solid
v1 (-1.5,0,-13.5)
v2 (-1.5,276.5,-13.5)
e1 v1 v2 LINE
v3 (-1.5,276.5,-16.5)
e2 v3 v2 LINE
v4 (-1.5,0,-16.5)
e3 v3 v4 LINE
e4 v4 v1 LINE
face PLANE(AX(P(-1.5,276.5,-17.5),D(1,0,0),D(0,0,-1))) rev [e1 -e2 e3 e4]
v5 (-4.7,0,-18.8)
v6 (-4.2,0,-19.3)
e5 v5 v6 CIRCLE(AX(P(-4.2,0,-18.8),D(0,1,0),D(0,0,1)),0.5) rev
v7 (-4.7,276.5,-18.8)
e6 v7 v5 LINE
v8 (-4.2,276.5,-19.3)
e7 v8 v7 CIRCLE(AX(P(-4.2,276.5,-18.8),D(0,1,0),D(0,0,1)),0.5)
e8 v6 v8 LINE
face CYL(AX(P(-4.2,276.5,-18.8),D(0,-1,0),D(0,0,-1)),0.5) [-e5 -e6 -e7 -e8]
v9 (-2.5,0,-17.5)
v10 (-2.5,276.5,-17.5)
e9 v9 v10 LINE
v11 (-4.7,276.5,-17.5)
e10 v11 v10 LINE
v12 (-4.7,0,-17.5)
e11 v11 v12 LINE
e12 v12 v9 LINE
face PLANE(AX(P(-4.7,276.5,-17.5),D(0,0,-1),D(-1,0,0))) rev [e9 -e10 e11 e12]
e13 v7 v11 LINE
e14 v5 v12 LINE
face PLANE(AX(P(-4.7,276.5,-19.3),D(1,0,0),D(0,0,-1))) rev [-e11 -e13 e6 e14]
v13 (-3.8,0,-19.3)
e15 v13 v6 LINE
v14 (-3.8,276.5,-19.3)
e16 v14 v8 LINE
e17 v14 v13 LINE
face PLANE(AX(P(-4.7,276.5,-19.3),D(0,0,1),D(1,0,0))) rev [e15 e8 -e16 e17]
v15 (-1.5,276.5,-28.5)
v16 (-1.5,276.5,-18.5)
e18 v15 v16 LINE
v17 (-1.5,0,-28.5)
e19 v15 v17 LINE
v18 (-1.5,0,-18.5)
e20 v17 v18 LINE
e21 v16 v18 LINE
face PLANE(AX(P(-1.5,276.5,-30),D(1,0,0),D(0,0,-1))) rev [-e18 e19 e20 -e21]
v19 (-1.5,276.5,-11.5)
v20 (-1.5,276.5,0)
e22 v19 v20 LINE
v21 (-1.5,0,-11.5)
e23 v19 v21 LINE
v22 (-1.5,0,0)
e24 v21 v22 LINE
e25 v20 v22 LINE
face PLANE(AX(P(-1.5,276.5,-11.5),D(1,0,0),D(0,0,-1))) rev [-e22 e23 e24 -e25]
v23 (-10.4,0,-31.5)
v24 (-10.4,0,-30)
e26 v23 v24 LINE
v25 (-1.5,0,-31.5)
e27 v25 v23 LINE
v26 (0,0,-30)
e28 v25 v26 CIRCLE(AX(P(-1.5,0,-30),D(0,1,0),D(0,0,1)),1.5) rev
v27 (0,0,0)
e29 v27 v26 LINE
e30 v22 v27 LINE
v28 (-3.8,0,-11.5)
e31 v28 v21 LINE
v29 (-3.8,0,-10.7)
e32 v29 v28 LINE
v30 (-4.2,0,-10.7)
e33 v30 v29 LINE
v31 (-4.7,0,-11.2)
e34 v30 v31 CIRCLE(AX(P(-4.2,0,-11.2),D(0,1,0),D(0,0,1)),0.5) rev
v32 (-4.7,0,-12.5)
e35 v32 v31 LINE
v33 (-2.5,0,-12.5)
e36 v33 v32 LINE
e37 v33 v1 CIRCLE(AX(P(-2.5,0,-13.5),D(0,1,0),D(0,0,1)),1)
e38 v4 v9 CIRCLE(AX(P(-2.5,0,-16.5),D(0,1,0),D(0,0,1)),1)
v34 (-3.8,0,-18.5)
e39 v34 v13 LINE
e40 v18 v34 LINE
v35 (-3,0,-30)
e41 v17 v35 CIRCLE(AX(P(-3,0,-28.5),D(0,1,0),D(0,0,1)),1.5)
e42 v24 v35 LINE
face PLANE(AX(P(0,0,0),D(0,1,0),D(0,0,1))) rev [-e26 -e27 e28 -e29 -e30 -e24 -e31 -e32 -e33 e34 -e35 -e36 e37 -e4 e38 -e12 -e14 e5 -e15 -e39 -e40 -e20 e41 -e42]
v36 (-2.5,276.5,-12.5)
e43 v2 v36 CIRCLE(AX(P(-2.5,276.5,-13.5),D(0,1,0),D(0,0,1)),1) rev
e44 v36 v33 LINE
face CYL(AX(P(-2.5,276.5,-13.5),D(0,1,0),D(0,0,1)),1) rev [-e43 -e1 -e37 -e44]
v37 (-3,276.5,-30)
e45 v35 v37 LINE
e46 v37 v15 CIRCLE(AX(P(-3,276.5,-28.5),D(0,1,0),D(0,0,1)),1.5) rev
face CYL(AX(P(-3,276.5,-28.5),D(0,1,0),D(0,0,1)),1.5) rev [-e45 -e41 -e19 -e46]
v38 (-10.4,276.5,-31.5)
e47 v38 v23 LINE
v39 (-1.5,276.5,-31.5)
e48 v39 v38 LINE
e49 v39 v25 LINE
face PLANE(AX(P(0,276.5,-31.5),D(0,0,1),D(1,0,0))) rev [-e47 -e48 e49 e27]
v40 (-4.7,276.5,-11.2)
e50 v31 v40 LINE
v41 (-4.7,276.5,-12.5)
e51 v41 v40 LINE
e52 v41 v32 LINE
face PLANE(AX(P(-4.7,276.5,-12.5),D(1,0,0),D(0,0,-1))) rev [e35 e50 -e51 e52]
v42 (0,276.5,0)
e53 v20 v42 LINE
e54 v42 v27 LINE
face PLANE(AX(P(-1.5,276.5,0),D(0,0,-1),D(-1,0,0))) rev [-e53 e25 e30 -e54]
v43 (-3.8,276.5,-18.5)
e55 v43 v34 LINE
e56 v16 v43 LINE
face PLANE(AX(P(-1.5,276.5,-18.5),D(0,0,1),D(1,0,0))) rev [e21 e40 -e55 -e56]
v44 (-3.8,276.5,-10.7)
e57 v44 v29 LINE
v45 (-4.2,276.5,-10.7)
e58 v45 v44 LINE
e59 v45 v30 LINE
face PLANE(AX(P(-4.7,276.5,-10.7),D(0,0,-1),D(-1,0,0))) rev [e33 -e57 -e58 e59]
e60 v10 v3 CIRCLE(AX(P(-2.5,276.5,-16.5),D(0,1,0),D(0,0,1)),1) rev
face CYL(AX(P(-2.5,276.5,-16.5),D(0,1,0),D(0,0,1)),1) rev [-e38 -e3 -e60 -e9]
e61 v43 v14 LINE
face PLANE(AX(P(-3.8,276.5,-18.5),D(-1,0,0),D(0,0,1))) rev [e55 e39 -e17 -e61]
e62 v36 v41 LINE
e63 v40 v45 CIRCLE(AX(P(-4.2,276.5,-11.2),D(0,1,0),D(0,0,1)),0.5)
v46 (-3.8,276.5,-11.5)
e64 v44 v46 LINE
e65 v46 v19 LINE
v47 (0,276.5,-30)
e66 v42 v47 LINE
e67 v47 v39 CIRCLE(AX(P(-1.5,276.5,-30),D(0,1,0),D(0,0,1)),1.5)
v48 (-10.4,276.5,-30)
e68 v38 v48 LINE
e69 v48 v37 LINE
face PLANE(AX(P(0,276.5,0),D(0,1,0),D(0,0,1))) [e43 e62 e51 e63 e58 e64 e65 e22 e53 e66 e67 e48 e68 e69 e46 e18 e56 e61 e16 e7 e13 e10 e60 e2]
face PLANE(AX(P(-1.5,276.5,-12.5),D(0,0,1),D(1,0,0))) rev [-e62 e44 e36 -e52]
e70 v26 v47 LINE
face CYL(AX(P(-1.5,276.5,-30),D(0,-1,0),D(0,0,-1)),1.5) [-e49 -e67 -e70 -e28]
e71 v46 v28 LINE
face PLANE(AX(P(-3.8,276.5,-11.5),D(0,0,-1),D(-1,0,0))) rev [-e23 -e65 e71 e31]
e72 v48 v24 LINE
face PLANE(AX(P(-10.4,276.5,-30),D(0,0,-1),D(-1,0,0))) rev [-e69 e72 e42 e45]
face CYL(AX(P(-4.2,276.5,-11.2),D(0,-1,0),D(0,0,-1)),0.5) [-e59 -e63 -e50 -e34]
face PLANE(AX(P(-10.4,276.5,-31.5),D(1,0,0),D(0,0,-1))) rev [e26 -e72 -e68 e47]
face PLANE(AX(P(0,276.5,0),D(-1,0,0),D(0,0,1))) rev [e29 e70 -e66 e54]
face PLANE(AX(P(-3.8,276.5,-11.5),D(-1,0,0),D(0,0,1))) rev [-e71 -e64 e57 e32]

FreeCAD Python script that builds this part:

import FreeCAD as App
import Part
import Sketcher

V = App.Vector
Q = App.Units.Quantity


def edges_at(feature, points):
    """Names of the edges that pass closest to the given points."""
    edges = feature.Shape.Edges
    near = lambda p: min(range(len(edges)), key=lambda i: edges[i].distToShape(Part.Vertex(*p))[0])
    return sorted({f"Edge{near(p) + 1}" for p in points})


def add_polygon(sketch, points):
    """Adds a closed chain of lines whose ends are joined by coincident constraints."""
    first, n = sketch.GeometryCount, len(points)
    for a, b in zip(points, points[1:] + points[:1]):
        sketch.addGeometry(Part.LineSegment(App.Vector(*a, 0), App.Vector(*b, 0)), False)
    for i in range(n):
        sketch.addConstraint(Sketcher.Constraint("Coincident", first + i, 2, first + (i + 1) % n, 1))

doc = App.newDocument("Part")
body = doc.addObject("PartDesign::Body", "Body")

# Sketch on XZ plane
sketch1 = body.newObject("Sketcher::SketchObject", "Sketch")
sketch1.AttachmentSupport = (doc.getObject("XZ_Plane"), [""])
sketch1.MapMode = "FlatFace"
add_polygon(sketch1, [(0, 0), (0, -31.5), (-10.4, -31.5), (-10.4, -30), (-1.5, -30), (-1.5, -18.5), (-3.8, -18.5), (-3.8, -19.3), (-4.7, -19.3), (-4.7, -17.5), (-1.5, -17.5), (-1.5, -12.5), (-4.7, -12.5), (-4.7, -10.7), (-3.8, -10.7), (-3.8, -11.5), (-1.5, -11.5), (-1.5, 0)])  # lines 0-17
sketch1.addConstraint(Sketcher.Constraint("Vertical", 0))
sketch1.addConstraint(Sketcher.Constraint("Horizontal", 1))
sketch1.addConstraint(Sketcher.Constraint("Vertical", 2))
sketch1.addConstraint(Sketcher.Constraint("Horizontal", 3))
sketch1.addConstraint(Sketcher.Constraint("Vertical", 4))
sketch1.addConstraint(Sketcher.Constraint("Horizontal", 5))
sketch1.addConstraint(Sketcher.Constraint("Vertical", 6))
sketch1.addConstraint(Sketcher.Constraint("Horizontal", 7))
sketch1.addConstraint(Sketcher.Constraint("Vertical", 8))
sketch1.addConstraint(Sketcher.Constraint("Horizontal", 9))
sketch1.addConstraint(Sketcher.Constraint("Vertical", 10))
sketch1.addConstraint(Sketcher.Constraint("Horizontal", 11))
sketch1.addConstraint(Sketcher.Constraint("Vertical", 12))
sketch1.addConstraint(Sketcher.Constraint("Horizontal", 13))
sketch1.addConstraint(Sketcher.Constraint("Vertical", 14))
sketch1.addConstraint(Sketcher.Constraint("Horizontal", 15))
sketch1.addConstraint(Sketcher.Constraint("Vertical", 16))
sketch1.addConstraint(Sketcher.Constraint("Horizontal", 17))
sketch1.addConstraint(Sketcher.Constraint("Coincident", 17, 2, -1, 1))
sketch1.addConstraint(Sketcher.Constraint("Vertical", 4, 2, 9, 2))
sketch1.addConstraint(Sketcher.Constraint("Vertical", 8, 2, 11, 2))
sketch1.addConstraint(Sketcher.Constraint("Vertical", 6, 2, 13, 2))
sketch1.addConstraint(Sketcher.Constraint("Vertical", 10, 2, 15, 2))
sketch1.addConstraint(Sketcher.Constraint("Equal", 17, 2))
sketch1.addConstraint(Sketcher.Constraint("Equal", 8, 12))
sketch1.addConstraint(Sketcher.Constraint("Equal", 6, 14))
sketch1.addConstraint(Sketcher.Constraint("Equal", 4, 16))
sketch1.addConstraint(Sketcher.Constraint("DistanceY", 10, 1, 10, 2, Q("5 mm")))
sketch1.addConstraint(Sketcher.Constraint("DistanceX", 1, 2, 1, 1, Q("10.4 mm")))
sketch1.addConstraint(Sketcher.Constraint("DistanceX", 3, 1, 3, 2, Q("8.9 mm")))
sketch1.addConstraint(Sketcher.Constraint("DistanceX", 5, 2, 5, 1, Q("2.3 mm")))
sketch1.addConstraint(Sketcher.Constraint("DistanceX", 7, 2, 7, 1, Q("0.9 mm")))
sketch1.addConstraint(Sketcher.Constraint("DistanceY", 0, 2, 0, 1, Q("31.5 mm")))
sketch1.addConstraint(Sketcher.Constraint("DistanceY", 4, 1, 4, 2, Q("11.5 mm")))
sketch1.addConstraint(Sketcher.Constraint("DistanceY", 6, 2, 6, 1, Q("0.8 mm")))
pad1 = body.newObject("PartDesign::Pad", "Pad")
pad1.Profile = sketch1
pad1.Length = 276.5
pad1.Reversed = True
doc.recompute()

fillet = body.newObject("PartDesign::Fillet", "Fillet")
fillet.Base = (pad1, edges_at(pad1, [(-4.7, 138.25, -10.7), (-4.7, 138.25, -19.3)]))
fillet.Radius = 0.5
doc.recompute()

fillet2 = body.newObject("PartDesign::Fillet", "Fillet001")
fillet2.Base = (fillet, edges_at(fillet, [(-1.5, 138.25, -12.5), (-1.5, 138.25, -17.5)]))
fillet2.Radius = 1
doc.recompute()

fillet3 = body.newObject("PartDesign::Fillet", "Fillet002")
fillet3.Base = (fillet2, edges_at(fillet2, [(-1.5, 138.25, -30)]))
fillet3.Radius = 1.5
doc.recompute()

fillet4 = body.newObject("PartDesign::Fillet", "Fillet003")
fillet4.Base = (fillet3, edges_at(fillet3, [(0, 138.25, -31.5)]))
fillet4.Radius = 1.5

doc.recompute()
